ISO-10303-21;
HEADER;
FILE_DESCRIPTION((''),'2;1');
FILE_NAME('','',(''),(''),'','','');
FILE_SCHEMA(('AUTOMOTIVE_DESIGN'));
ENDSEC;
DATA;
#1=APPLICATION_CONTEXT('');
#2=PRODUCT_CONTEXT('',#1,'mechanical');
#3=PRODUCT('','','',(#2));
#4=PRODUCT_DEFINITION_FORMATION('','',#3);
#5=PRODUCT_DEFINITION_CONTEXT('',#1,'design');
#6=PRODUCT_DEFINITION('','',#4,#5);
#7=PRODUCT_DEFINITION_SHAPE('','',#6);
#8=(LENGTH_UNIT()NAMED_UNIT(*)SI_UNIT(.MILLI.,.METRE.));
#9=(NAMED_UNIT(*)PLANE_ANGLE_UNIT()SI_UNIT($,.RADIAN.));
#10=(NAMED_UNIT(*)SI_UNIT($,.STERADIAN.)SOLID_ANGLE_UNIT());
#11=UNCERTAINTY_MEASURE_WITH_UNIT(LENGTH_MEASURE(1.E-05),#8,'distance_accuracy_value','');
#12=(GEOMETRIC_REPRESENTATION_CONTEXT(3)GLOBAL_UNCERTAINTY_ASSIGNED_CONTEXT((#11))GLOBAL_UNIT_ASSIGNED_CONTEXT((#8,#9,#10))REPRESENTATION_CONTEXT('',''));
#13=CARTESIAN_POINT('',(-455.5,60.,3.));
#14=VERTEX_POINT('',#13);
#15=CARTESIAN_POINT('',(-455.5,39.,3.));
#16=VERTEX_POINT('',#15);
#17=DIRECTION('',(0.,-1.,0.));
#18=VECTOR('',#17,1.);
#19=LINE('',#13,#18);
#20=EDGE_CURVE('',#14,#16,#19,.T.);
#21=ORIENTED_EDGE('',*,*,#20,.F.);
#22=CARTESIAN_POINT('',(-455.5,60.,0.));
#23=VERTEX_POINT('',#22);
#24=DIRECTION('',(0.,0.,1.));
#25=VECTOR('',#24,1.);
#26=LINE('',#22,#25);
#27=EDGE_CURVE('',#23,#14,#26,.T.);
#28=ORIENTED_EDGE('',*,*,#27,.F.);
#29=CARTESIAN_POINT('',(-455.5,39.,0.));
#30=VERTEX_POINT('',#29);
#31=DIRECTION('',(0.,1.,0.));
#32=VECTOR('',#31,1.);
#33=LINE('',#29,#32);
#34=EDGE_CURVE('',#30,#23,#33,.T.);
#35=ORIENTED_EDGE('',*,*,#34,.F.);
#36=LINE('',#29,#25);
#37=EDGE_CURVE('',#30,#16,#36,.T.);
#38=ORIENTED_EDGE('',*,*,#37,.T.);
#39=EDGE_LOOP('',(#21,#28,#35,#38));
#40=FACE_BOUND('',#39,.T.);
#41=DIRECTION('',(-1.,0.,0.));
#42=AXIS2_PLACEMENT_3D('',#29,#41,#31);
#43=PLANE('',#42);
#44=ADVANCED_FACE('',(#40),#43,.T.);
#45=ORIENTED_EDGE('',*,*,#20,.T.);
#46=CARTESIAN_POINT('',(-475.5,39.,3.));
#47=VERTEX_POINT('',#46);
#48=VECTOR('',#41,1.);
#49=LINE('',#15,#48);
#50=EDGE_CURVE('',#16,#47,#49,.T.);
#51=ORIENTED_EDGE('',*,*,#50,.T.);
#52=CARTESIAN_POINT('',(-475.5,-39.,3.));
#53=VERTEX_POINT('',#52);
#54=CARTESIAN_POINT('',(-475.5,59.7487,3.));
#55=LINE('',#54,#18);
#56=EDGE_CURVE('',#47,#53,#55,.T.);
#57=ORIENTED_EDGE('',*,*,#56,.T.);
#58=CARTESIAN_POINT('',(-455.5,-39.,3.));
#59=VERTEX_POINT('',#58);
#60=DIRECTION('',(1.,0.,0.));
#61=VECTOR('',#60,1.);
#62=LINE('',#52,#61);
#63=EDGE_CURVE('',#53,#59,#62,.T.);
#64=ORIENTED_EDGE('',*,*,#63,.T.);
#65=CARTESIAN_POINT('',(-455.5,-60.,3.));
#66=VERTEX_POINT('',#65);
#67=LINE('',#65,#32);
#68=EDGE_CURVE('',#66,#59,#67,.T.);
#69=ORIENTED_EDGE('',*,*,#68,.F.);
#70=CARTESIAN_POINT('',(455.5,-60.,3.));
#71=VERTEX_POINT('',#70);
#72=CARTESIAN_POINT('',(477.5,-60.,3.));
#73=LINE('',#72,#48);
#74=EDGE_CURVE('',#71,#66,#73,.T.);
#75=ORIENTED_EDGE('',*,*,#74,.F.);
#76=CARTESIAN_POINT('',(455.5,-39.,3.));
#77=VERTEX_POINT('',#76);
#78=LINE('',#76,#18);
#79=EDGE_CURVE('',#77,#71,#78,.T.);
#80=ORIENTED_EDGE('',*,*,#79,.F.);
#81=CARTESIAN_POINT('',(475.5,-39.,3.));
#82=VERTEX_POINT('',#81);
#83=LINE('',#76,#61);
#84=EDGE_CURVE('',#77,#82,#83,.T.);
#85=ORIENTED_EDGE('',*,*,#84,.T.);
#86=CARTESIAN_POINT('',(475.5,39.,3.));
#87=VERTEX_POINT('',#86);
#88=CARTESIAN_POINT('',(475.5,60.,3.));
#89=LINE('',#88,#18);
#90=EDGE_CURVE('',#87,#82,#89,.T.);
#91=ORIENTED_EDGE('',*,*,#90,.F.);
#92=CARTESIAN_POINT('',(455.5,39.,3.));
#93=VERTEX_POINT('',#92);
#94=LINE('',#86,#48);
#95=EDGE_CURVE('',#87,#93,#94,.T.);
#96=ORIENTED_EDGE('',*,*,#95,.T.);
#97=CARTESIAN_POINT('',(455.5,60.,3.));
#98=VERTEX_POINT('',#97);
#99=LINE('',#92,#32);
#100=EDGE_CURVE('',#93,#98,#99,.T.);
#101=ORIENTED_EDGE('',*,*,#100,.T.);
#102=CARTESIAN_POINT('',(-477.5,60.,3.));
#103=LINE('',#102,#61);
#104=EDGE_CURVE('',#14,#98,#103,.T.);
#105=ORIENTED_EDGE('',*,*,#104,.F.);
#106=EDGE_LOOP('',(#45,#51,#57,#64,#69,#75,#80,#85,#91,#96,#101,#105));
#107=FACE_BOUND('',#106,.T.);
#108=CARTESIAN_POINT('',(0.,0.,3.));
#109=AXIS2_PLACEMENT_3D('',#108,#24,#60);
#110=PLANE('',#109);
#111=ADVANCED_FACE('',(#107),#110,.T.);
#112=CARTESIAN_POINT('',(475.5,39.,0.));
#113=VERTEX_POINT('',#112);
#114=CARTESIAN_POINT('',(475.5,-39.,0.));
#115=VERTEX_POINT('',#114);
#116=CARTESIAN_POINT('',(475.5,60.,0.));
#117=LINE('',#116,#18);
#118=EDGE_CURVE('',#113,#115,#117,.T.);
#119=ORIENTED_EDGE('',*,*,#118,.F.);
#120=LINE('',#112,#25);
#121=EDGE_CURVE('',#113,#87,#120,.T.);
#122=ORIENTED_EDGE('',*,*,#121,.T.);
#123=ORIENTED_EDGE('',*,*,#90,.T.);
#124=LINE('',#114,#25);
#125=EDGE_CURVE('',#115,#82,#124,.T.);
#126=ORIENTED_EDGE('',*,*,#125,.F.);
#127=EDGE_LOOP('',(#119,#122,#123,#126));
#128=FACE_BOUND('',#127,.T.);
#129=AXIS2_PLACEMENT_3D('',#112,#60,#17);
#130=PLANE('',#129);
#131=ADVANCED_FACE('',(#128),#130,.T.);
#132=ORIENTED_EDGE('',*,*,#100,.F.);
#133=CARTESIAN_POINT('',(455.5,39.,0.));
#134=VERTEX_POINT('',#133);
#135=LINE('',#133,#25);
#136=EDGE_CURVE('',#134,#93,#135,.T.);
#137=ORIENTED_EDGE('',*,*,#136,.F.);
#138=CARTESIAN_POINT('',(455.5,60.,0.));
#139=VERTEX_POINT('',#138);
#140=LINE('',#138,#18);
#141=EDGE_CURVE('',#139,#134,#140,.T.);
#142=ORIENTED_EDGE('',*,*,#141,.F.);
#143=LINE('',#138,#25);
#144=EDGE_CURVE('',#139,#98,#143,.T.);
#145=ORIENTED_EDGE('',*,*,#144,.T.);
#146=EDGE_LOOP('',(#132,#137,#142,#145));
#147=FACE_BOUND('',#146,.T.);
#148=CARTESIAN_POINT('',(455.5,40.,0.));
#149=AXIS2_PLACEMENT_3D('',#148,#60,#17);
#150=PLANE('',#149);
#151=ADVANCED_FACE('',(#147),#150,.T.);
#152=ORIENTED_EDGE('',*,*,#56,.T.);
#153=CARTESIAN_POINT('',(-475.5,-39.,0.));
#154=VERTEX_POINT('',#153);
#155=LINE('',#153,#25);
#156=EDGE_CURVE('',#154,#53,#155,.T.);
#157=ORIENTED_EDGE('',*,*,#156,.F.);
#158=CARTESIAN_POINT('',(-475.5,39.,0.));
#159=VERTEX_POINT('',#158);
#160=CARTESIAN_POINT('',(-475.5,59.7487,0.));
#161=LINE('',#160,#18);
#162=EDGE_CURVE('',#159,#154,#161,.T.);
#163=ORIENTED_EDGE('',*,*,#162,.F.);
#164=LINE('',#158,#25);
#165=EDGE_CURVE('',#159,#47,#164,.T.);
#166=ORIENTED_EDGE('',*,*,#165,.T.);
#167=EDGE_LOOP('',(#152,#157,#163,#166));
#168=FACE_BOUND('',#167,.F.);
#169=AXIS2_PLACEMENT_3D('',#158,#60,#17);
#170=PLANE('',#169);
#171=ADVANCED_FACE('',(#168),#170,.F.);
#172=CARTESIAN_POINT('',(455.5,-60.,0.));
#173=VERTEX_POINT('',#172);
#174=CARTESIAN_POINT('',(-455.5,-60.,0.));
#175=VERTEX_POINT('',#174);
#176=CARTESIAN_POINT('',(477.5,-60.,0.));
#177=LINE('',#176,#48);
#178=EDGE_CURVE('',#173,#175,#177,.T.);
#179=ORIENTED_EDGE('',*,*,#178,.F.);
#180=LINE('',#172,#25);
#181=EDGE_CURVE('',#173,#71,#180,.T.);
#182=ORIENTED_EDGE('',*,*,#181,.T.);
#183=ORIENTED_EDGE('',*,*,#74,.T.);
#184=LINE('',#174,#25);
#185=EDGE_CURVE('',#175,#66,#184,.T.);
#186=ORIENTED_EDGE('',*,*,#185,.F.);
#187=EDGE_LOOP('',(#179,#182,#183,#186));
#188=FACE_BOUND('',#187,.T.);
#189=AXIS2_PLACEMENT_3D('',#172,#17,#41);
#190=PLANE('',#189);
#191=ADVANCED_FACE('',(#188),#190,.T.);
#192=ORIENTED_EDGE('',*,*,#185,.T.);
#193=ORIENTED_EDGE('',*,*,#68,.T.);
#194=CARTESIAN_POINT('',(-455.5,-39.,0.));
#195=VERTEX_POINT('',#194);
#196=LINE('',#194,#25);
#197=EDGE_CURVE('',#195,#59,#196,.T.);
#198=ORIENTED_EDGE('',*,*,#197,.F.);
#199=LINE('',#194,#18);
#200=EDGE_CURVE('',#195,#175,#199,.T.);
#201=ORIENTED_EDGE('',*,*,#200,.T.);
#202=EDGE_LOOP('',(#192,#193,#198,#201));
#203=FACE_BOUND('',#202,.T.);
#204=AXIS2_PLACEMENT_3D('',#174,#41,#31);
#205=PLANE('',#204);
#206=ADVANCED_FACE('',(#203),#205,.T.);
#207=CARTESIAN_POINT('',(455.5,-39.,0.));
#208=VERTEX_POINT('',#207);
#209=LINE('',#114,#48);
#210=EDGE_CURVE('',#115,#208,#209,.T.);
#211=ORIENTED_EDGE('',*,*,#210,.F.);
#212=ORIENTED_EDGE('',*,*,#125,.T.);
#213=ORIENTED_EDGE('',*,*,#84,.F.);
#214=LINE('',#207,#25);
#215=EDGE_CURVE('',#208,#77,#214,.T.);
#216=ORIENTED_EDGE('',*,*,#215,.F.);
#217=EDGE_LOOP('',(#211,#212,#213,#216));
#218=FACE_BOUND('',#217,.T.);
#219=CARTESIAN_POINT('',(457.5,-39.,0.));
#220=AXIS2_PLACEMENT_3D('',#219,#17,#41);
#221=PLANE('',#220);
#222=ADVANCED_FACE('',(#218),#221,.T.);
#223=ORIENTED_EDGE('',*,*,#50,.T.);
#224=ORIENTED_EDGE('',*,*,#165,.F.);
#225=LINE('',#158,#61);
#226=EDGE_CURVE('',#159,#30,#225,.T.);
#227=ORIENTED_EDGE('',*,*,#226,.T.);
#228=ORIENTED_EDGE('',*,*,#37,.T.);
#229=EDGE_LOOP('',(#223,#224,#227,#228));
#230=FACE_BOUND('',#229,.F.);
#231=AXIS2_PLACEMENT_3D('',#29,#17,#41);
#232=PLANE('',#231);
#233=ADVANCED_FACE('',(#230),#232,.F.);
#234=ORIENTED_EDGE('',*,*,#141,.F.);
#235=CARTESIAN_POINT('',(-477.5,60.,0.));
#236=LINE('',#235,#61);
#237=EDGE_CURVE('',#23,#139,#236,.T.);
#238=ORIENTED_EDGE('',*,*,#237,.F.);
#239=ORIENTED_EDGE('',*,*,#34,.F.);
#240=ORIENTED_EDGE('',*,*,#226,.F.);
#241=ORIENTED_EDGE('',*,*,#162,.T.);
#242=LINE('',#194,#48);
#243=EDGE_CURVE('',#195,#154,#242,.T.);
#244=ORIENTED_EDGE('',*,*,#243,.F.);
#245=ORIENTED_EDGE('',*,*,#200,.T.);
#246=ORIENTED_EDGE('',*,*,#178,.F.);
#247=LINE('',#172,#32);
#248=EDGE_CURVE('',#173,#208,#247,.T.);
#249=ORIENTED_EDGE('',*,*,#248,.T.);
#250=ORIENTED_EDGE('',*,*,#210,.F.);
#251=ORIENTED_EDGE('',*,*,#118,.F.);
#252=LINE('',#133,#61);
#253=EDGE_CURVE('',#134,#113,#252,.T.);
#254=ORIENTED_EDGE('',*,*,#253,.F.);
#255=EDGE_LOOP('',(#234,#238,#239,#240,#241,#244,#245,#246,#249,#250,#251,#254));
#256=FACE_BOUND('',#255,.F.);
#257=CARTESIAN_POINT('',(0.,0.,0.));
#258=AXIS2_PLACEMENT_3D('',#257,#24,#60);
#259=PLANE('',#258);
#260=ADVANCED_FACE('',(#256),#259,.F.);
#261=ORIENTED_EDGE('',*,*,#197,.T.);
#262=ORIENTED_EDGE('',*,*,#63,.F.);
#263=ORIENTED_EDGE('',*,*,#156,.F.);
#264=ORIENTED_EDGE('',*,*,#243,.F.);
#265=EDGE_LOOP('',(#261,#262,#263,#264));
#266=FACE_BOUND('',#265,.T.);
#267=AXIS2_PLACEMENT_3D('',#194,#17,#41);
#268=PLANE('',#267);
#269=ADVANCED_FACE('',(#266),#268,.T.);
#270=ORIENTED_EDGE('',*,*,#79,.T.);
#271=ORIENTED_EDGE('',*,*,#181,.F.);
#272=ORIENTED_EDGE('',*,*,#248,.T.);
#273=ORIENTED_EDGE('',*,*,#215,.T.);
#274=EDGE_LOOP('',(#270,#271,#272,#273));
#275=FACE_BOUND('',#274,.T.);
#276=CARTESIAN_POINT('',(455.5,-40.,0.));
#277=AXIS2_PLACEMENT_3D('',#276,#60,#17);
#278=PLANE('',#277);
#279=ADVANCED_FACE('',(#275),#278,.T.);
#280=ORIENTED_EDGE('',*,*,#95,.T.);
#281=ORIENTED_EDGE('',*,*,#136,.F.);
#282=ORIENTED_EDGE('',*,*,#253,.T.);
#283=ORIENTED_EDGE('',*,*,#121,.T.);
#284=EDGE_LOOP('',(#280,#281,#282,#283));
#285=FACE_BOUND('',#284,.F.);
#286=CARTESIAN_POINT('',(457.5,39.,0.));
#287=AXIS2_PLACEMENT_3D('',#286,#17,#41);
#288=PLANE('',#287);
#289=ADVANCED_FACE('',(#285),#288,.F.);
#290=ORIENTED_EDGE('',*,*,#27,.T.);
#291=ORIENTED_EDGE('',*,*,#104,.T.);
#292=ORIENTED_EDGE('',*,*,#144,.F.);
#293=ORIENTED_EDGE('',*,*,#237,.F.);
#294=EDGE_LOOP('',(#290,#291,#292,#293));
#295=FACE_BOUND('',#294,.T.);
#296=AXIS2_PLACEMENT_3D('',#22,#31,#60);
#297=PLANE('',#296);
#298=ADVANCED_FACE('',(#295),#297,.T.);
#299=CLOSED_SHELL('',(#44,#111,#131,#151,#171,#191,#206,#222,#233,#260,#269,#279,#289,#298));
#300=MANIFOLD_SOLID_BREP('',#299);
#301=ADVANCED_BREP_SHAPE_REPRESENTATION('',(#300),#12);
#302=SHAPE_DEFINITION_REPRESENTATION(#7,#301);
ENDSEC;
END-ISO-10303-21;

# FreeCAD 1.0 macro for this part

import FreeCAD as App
import Part
import Sketcher


def add_polygon(sketch, points):
    """Adds a closed chain of lines whose ends are joined by coincident constraints."""
    first, n = sketch.GeometryCount, len(points)
    for a, b in zip(points, points[1:] + points[:1]):
        sketch.addGeometry(Part.LineSegment(App.Vector(*a, 0), App.Vector(*b, 0)), False)
    for i in range(n):
        sketch.addConstraint(Sketcher.Constraint("Coincident", first + i, 2, first + (i + 1) % n, 1))

doc = App.newDocument("Part")
body = doc.addObject("PartDesign::Body", "Body")

# Sketch on XY plane
sketch1 = body.newObject("Sketcher::SketchObject", "Sketch")
sketch1.AttachmentSupport = (doc.getObject("XY_Plane"), [""])
sketch1.MapMode = "FlatFace"
add_polygon(sketch1, [(-456, -60), (456, -60), (456, -39), (476, -39), (476, 39), (456, 39), (456, 60), (-456, 60), (-456, 39), (-476, 39), (-476, -39), (-456, -39)])  # lines 0-11
sketch1.addConstraint([
    Sketcher.Constraint("Horizontal", 0),
    Sketcher.Constraint("Vertical", 1),
    Sketcher.Constraint("Horizontal", 2),
    Sketcher.Constraint("Vertical", 3),
    Sketcher.Constraint("Horizontal", 4),
    Sketcher.Constraint("Vertical", 5),
    Sketcher.Constraint("Horizontal", 6),
    Sketcher.Constraint("Vertical", 7),
    Sketcher.Constraint("Horizontal", 8),
    Sketcher.Constraint("Vertical", 9),
    Sketcher.Constraint("Horizontal", 10),
    Sketcher.Constraint("Vertical", 11),
    Sketcher.Constraint("Symmetric", 0, 2, 6, 2, -1, 1),
    Sketcher.Constraint("Symmetric", 2, 2, 8, 2, -1, 1),
    Sketcher.Constraint("Symmetric", 4, 2, 10, 2, -1, 1),
    Sketcher.Constraint("Symmetric", 4, 2, 7, 2, -2),
    Sketcher.Constraint("DistanceY", 0, 2, 5, 2, 120.0),
    Sketcher.Constraint("DistanceX", 0, 1, 0, 2, 911.0),
    Sketcher.Constraint("DistanceX", 2, 1, 2, 2, 20.0),
    Sketcher.Constraint("DistanceY", 1, 1, 1, 2, 21.0),
])
pad1 = body.newObject("PartDesign::Pad", "Pad")
pad1.Profile = sketch1
pad1.Length = 3

doc.recompute()
